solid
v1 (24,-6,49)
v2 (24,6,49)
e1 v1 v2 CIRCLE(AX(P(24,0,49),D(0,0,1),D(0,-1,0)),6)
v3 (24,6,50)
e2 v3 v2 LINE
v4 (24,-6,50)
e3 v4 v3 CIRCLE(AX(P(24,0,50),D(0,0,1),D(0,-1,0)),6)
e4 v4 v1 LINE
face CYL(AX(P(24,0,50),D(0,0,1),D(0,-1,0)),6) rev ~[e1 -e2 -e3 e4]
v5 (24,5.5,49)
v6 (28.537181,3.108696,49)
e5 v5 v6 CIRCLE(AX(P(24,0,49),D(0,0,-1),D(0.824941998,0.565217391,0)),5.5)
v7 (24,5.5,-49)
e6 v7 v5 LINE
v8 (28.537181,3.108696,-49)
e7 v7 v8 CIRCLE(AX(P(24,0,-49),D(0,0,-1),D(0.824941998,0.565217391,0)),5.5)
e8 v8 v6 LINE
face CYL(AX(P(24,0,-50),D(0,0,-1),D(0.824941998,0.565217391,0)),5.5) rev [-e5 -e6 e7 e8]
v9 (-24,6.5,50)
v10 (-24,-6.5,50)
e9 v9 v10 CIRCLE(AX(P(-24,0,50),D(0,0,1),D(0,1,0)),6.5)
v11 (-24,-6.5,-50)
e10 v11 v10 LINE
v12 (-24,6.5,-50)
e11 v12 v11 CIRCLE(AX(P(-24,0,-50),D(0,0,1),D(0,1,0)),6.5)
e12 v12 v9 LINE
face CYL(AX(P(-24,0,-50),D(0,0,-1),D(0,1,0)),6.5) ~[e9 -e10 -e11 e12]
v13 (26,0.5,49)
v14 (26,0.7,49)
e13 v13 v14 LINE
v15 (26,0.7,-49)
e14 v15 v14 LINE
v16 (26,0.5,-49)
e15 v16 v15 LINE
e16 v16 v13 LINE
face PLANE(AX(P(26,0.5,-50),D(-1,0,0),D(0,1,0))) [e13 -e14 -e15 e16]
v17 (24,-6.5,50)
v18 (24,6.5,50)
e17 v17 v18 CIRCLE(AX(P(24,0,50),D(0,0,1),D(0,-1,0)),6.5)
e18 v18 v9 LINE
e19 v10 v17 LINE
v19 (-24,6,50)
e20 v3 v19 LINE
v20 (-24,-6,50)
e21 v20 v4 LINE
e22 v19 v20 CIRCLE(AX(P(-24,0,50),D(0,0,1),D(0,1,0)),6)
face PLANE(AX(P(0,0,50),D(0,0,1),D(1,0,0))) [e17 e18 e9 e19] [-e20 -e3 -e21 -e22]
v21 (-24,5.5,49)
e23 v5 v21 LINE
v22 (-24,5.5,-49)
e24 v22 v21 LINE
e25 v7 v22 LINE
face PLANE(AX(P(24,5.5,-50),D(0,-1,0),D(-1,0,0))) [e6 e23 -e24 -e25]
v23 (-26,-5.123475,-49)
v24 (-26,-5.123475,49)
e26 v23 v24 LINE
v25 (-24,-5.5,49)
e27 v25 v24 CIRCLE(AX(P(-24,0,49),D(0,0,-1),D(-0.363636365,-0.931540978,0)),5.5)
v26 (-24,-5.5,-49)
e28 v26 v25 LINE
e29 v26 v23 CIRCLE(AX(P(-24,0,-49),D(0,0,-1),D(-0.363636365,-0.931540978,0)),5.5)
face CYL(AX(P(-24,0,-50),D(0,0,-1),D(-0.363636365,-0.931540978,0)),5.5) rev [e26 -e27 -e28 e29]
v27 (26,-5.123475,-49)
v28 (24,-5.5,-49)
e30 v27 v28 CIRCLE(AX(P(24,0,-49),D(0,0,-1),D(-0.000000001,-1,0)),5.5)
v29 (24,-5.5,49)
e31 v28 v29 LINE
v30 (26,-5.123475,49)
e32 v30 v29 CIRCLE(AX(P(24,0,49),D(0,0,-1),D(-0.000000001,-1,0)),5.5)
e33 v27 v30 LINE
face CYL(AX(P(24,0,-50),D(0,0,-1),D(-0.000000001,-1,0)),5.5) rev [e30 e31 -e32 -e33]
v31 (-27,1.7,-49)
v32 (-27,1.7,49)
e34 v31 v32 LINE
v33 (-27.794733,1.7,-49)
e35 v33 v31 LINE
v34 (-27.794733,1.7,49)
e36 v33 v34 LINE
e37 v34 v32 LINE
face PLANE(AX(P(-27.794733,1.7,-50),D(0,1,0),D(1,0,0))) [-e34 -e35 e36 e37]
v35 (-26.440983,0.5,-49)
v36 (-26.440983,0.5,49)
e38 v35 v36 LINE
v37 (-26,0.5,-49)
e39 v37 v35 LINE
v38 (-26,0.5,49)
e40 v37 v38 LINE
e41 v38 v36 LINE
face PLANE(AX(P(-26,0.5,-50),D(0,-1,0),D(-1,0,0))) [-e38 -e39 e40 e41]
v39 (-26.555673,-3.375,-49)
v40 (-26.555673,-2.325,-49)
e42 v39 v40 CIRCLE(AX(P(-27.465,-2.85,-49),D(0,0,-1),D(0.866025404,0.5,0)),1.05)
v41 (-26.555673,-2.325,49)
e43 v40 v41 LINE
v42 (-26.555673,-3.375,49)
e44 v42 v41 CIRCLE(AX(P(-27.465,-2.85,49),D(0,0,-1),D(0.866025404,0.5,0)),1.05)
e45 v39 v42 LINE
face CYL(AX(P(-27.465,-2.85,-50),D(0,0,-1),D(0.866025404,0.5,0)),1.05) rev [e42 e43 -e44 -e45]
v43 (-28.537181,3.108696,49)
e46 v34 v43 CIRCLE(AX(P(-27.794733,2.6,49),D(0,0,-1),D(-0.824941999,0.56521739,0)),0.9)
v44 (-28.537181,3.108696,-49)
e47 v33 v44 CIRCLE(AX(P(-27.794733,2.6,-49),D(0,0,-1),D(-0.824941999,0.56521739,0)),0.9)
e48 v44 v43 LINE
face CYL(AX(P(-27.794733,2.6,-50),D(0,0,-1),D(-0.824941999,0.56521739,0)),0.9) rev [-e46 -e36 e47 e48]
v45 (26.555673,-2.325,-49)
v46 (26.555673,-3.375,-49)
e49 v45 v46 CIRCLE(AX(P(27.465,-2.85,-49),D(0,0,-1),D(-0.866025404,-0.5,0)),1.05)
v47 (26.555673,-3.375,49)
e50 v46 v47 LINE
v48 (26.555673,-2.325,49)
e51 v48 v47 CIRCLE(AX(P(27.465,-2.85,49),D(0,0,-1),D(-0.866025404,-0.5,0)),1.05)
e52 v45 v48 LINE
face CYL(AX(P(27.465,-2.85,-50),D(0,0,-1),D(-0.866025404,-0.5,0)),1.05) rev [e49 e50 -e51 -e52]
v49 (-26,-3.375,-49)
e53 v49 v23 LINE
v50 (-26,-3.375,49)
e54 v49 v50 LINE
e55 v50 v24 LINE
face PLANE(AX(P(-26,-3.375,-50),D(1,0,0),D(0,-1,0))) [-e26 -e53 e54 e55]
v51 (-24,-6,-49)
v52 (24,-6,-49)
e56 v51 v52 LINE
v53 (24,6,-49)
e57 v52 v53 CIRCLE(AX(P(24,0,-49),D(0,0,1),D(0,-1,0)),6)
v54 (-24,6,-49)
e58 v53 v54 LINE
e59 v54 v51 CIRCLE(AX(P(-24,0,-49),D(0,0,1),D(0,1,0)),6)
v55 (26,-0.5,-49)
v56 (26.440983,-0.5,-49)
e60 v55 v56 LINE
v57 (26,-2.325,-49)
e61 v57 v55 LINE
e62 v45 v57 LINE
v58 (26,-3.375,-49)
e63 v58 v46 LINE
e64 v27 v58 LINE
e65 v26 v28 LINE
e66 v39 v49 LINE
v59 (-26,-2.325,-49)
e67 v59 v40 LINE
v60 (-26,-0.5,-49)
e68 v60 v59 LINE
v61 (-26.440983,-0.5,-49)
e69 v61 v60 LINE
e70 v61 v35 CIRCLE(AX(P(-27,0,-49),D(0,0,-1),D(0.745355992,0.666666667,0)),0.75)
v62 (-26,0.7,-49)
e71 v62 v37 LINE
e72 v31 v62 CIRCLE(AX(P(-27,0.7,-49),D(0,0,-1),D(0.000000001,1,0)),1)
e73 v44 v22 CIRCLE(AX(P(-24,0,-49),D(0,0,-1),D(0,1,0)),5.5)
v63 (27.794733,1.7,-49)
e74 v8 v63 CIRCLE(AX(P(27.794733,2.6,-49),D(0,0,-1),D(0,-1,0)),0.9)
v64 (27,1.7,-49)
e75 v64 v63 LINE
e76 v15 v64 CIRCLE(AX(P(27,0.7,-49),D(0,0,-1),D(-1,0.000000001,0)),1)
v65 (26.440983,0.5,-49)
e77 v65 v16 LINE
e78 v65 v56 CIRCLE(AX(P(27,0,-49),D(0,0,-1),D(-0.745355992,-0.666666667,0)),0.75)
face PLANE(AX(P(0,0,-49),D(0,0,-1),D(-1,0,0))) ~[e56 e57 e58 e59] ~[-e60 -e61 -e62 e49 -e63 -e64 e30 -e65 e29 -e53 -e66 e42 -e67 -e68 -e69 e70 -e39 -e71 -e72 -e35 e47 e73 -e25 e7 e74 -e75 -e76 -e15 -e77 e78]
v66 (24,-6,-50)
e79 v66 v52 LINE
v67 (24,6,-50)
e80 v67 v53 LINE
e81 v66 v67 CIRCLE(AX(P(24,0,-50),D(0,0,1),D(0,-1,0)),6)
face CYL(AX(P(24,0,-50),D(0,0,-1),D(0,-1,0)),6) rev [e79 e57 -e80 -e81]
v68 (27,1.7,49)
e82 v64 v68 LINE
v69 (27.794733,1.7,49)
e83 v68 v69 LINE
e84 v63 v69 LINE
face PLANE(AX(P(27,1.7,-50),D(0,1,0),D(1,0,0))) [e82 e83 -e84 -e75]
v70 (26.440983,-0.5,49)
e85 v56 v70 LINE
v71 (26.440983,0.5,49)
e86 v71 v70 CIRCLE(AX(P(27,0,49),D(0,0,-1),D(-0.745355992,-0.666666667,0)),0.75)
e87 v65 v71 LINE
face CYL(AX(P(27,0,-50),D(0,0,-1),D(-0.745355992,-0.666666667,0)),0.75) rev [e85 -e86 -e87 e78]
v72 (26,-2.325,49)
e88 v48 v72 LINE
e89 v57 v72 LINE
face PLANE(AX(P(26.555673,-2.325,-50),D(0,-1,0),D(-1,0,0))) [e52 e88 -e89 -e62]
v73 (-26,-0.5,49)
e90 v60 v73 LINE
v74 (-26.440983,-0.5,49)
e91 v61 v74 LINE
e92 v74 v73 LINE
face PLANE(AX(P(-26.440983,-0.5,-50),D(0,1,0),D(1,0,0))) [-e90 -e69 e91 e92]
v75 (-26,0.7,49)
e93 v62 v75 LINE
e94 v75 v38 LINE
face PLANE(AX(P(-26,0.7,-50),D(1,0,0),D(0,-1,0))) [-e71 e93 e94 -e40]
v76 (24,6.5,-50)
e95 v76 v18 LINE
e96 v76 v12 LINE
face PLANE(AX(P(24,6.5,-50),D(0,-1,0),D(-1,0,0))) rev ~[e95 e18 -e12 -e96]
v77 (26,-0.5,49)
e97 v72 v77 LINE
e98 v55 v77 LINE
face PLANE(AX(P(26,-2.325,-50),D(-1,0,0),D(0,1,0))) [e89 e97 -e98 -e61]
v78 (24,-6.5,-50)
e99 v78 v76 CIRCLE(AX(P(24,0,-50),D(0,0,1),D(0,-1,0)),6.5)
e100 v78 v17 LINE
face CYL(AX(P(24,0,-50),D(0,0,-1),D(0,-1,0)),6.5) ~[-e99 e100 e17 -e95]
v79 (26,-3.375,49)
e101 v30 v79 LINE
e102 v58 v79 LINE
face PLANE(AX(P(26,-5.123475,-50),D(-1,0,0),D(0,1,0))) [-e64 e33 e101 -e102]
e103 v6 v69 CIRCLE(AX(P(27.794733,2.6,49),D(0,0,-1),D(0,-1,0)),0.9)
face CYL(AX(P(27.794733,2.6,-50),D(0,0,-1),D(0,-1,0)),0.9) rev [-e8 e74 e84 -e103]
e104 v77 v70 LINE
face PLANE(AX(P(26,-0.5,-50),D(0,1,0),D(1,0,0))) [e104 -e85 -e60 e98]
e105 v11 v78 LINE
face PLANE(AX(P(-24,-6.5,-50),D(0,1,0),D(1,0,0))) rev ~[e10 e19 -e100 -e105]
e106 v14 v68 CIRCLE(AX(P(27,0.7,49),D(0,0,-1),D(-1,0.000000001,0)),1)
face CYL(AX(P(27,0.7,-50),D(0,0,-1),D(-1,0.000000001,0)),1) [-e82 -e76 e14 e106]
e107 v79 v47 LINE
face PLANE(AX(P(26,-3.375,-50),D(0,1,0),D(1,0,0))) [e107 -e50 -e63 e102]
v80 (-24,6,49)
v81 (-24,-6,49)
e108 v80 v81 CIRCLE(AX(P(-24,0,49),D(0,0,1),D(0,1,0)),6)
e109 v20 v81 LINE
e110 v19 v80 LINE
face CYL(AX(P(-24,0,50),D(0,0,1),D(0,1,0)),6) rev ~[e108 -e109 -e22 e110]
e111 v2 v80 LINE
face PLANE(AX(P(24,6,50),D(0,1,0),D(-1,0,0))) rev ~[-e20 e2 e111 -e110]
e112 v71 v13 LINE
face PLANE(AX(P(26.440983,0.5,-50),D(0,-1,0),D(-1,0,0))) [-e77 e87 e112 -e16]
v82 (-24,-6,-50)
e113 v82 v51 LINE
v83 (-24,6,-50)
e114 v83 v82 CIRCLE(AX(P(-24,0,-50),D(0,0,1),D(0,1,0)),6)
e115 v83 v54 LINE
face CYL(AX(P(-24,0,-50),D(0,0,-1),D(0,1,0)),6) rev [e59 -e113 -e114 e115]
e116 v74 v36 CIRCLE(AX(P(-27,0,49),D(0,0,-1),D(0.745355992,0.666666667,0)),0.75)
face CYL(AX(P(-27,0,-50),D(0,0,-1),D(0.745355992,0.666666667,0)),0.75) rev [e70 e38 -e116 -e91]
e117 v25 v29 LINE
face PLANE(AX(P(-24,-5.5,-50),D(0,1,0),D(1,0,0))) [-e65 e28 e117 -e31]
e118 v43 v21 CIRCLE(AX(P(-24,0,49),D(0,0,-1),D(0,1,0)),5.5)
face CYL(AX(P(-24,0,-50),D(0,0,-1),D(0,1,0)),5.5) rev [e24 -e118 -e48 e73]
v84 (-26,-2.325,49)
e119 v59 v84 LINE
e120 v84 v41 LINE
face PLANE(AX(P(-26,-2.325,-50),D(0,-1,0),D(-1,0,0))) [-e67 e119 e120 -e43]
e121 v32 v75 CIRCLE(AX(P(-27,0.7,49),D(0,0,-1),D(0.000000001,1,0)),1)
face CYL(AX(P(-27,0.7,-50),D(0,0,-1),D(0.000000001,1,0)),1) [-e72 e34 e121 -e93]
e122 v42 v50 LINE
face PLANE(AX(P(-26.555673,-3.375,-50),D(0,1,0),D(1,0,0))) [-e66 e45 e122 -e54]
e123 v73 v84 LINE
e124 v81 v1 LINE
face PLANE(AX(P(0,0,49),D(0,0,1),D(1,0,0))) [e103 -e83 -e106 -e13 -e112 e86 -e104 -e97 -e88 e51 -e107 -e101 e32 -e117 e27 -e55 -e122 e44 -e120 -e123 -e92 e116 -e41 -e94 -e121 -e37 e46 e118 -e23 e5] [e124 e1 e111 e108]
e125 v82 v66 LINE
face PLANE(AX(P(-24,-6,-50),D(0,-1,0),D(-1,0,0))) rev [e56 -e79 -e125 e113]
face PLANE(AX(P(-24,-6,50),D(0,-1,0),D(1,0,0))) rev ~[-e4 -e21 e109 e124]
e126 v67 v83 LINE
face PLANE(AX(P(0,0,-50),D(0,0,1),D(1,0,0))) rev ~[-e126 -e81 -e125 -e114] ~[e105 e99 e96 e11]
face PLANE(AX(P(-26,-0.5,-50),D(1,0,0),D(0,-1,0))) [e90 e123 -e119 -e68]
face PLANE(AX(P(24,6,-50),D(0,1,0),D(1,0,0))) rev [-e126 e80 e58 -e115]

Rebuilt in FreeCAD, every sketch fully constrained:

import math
import FreeCAD as App
import Part
import Sketcher
from FreeCAD import Vector

doc = App.newDocument("Part")
body = doc.addObject("PartDesign::Body", "Body")

# Sketch on XY plane
sketch1 = doc.addObject("Sketcher::SketchObject", "Sketch")
body.addObject(sketch1)
sketch1.AttachmentSupport = (doc.XY_Plane, [""])
sketch1.MapMode = "FlatFace"
sketch1.addGeometry(Part.LineSegment(Vector(24, 6.5, 0), Vector(-24, 6.5, 0)), False)
sketch1.addGeometry(Part.ArcOfCircle(Part.Circle(Vector(-24, 0, 0), Vector(0, 0, 1), 6.5), math.radians(90), math.radians(270)), False)
sketch1.addGeometry(Part.LineSegment(Vector(-24, -6.5, 0), Vector(24, -6.5, 0)), False)
sketch1.addGeometry(Part.ArcOfCircle(Part.Circle(Vector(24, 0, 0), Vector(0, 0, 1), 6.5), math.radians(-90), math.radians(90)), False)
sketch1.addGeometry(Part.LineSegment(Vector(-24, 5.5, 0), Vector(24, 5.5, 0)), False)
sketch1.addGeometry(Part.ArcOfCircle(Part.Circle(Vector(24, 0, 0), Vector(0, 0, 1), 5.5), math.radians(34.417389), math.radians(90)), False)
sketch1.addGeometry(Part.ArcOfCircle(Part.Circle(Vector(27.794733, 2.6, 0), Vector(0, 0, 1), 0.9), math.radians(-90), math.radians(34.417389)), False)
sketch1.addGeometry(Part.LineSegment(Vector(27.794733, 1.7, 0), Vector(27, 1.7, 0)), False)
sketch1.addGeometry(Part.ArcOfCircle(Part.Circle(Vector(27, 0.7, 0), Vector(0, 0, 1), 1), math.radians(90), math.radians(180)), False)
sketch1.addGeometry(Part.LineSegment(Vector(26, 0.7, 0), Vector(26, 0.5, 0)), False)
sketch1.addGeometry(Part.LineSegment(Vector(26, 0.5, 0), Vector(26.440983, 0.5, 0)), False)
sketch1.addGeometry(Part.ArcOfCircle(Part.Circle(Vector(27, 0, 0), Vector(0, 0, 1), 0.75), math.radians(-138.189685), math.radians(138.189685)), False)
sketch1.addGeometry(Part.LineSegment(Vector(26.440983, -0.5, 0), Vector(26, -0.5, 0)), False)
sketch1.addGeometry(Part.LineSegment(Vector(26, -0.5, 0), Vector(26, -2.325, 0)), False)
sketch1.addGeometry(Part.LineSegment(Vector(26, -2.325, 0), Vector(26.555673, -2.325, 0)), False)
sketch1.addGeometry(Part.ArcOfCircle(Part.Circle(Vector(27.465, -2.85, 0), Vector(0, 0, 1), 1.05), math.radians(-150), math.radians(150)), False)
sketch1.addGeometry(Part.LineSegment(Vector(26.555673, -3.375, 0), Vector(26, -3.375, 0)), False)
sketch1.addGeometry(Part.LineSegment(Vector(26, -3.375, 0), Vector(26, -5.123475, 0)), False)
sketch1.addGeometry(Part.ArcOfCircle(Part.Circle(Vector(24, 0, 0), Vector(0, 0, 1), 5.5), math.radians(-90), math.radians(-68.676314)), False)
sketch1.addGeometry(Part.LineSegment(Vector(24, -5.5, 0), Vector(-24, -5.5, 0)), False)
sketch1.addGeometry(Part.ArcOfCircle(Part.Circle(Vector(-24, 0, 0), Vector(0, 0, 1), 5.5), math.radians(-111.323686), math.radians(-90)), False)
sketch1.addGeometry(Part.LineSegment(Vector(-26, -5.123475, 0), Vector(-26, -3.375, 0)), False)
sketch1.addGeometry(Part.LineSegment(Vector(-26, -3.375, 0), Vector(-26.555673, -3.375, 0)), False)
sketch1.addGeometry(Part.ArcOfCircle(Part.Circle(Vector(-27.465, -2.85, 0), Vector(0, 0, 1), 1.05), math.radians(30), math.radians(330)), False)
sketch1.addGeometry(Part.LineSegment(Vector(-26.555673, -2.325, 0), Vector(-26, -2.325, 0)), False)
sketch1.addGeometry(Part.LineSegment(Vector(-26, -2.325, 0), Vector(-26, -0.5, 0)), False)
sketch1.addGeometry(Part.LineSegment(Vector(-26, -0.5, 0), Vector(-26.440983, -0.5, 0)), False)
sketch1.addGeometry(Part.ArcOfCircle(Part.Circle(Vector(-27, 0, 0), Vector(0, 0, 1), 0.75), math.radians(41.810315), math.radians(318.189685)), False)
sketch1.addGeometry(Part.LineSegment(Vector(-26.440983, 0.5, 0), Vector(-26, 0.5, 0)), False)
sketch1.addGeometry(Part.LineSegment(Vector(-26, 0.5, 0), Vector(-26, 0.7, 0)), False)
sketch1.addGeometry(Part.ArcOfCircle(Part.Circle(Vector(-27, 0.7, 0), Vector(0, 0, 1), 1), math.radians(0), math.radians(90)), False)
sketch1.addGeometry(Part.LineSegment(Vector(-27, 1.7, 0), Vector(-27.794733, 1.7, 0)), False)
sketch1.addGeometry(Part.ArcOfCircle(Part.Circle(Vector(-27.794733, 2.6, 0), Vector(0, 0, 1), 0.9), math.radians(145.582611), math.radians(270)), False)
sketch1.addGeometry(Part.ArcOfCircle(Part.Circle(Vector(-24, 0, 0), Vector(0, 0, 1), 5.5), math.radians(90), math.radians(145.582611)), False)
sketch1.addConstraint(Sketcher.Constraint("Tangent", 0, 2, 1, 1))
sketch1.addConstraint(Sketcher.Constraint("Tangent", 1, 2, 2, 1))
sketch1.addConstraint(Sketcher.Constraint("Tangent", 2, 2, 3, 1))
sketch1.addConstraint(Sketcher.Constraint("Tangent", 3, 2, 0, 1))
sketch1.addConstraint(Sketcher.Constraint("Tangent", 4, 2, 5, 2))
sketch1.addConstraint(Sketcher.Constraint("Tangent", 5, 1, 6, 2))
sketch1.addConstraint(Sketcher.Constraint("Tangent", 6, 1, 7, 1))
sketch1.addConstraint(Sketcher.Constraint("Tangent", 7, 2, 8, 1))
sketch1.addConstraint(Sketcher.Constraint("Tangent", 8, 2, 9, 1))
sketch1.addConstraint(Sketcher.Constraint("Coincident", 9, 2, 10, 1))
sketch1.addConstraint(Sketcher.Constraint("Coincident", 10, 2, 11, 2))
sketch1.addConstraint(Sketcher.Constraint("Coincident", 11, 1, 12, 1))
sketch1.addConstraint(Sketcher.Constraint("Coincident", 12, 2, 13, 1))
sketch1.addConstraint(Sketcher.Constraint("Coincident", 13, 2, 14, 1))
sketch1.addConstraint(Sketcher.Constraint("Coincident", 14, 2, 15, 2))
sketch1.addConstraint(Sketcher.Constraint("Coincident", 15, 1, 16, 1))
sketch1.addConstraint(Sketcher.Constraint("Coincident", 16, 2, 17, 1))
sketch1.addConstraint(Sketcher.Constraint("Coincident", 17, 2, 18, 2))
sketch1.addConstraint(Sketcher.Constraint("Tangent", 18, 1, 19, 1))
sketch1.addConstraint(Sketcher.Constraint("Tangent", 19, 2, 20, 2))
sketch1.addConstraint(Sketcher.Constraint("Coincident", 20, 1, 21, 1))
sketch1.addConstraint(Sketcher.Constraint("Coincident", 21, 2, 22, 1))
sketch1.addConstraint(Sketcher.Constraint("Coincident", 22, 2, 23, 2))
sketch1.addConstraint(Sketcher.Constraint("Coincident", 23, 1, 24, 1))
sketch1.addConstraint(Sketcher.Constraint("Coincident", 24, 2, 25, 1))
sketch1.addConstraint(Sketcher.Constraint("Coincident", 25, 2, 26, 1))
sketch1.addConstraint(Sketcher.Constraint("Coincident", 26, 2, 27, 2))
sketch1.addConstraint(Sketcher.Constraint("Coincident", 27, 1, 28, 1))
sketch1.addConstraint(Sketcher.Constraint("Coincident", 28, 2, 29, 1))
sketch1.addConstraint(Sketcher.Constraint("Tangent", 29, 2, 30, 1))
sketch1.addConstraint(Sketcher.Constraint("Tangent", 30, 2, 31, 1))
sketch1.addConstraint(Sketcher.Constraint("Tangent", 31, 2, 32, 2))
sketch1.addConstraint(Sketcher.Constraint("Tangent", 32, 1, 33, 2))
sketch1.addConstraint(Sketcher.Constraint("Tangent", 33, 1, 4, 1))
sketch1.addConstraint(Sketcher.Constraint("Horizontal", 0))
sketch1.addConstraint(Sketcher.Constraint("Horizontal", 2))
sketch1.addConstraint(Sketcher.Constraint("Horizontal", 4))
sketch1.addConstraint(Sketcher.Constraint("Horizontal", 7))
sketch1.addConstraint(Sketcher.Constraint("Vertical", 9))
sketch1.addConstraint(Sketcher.Constraint("Horizontal", 10))
sketch1.addConstraint(Sketcher.Constraint("Horizontal", 12))
sketch1.addConstraint(Sketcher.Constraint("Vertical", 13))
sketch1.addConstraint(Sketcher.Constraint("Horizontal", 14))
sketch1.addConstraint(Sketcher.Constraint("Horizontal", 16))
sketch1.addConstraint(Sketcher.Constraint("Vertical", 17))
sketch1.addConstraint(Sketcher.Constraint("Horizontal", 19))
sketch1.addConstraint(Sketcher.Constraint("Vertical", 21))
sketch1.addConstraint(Sketcher.Constraint("Horizontal", 22))
sketch1.addConstraint(Sketcher.Constraint("Horizontal", 24))
sketch1.addConstraint(Sketcher.Constraint("Vertical", 25))
sketch1.addConstraint(Sketcher.Constraint("Horizontal", 26))
sketch1.addConstraint(Sketcher.Constraint("Horizontal", 28))
sketch1.addConstraint(Sketcher.Constraint("Vertical", 29))
sketch1.addConstraint(Sketcher.Constraint("Horizontal", 31))
sketch1.addConstraint(Sketcher.Constraint("Coincident", 5, 3, 3, 3))
sketch1.addConstraint(Sketcher.Constraint("Coincident", 18, 3, 3, 3))
sketch1.addConstraint(Sketcher.Constraint("Coincident", 20, 3, 1, 3))
sketch1.addConstraint(Sketcher.Constraint("Coincident", 33, 3, 1, 3))
sketch1.addConstraint(Sketcher.Constraint("Equal", 5, 18))
sketch1.addConstraint(Sketcher.Constraint("Equal", 15, 23))
sketch1.addConstraint(Sketcher.Constraint("Equal", 11, 27))
sketch1.addConstraint(Sketcher.Constraint("Equal", 8, 30))
sketch1.addConstraint(Sketcher.Constraint("Equal", 6, 32))
sketch1.addConstraint(Sketcher.Constraint("Symmetric", 1, 3, 3, 3, -1, 1))
sketch1.addConstraint(Sketcher.Constraint("Symmetric", 11, 3, 27, 3, -1, 1))
sketch1.addConstraint(Sketcher.Constraint("Symmetric", 9, 2, 25, 2, -1, 1))
sketch1.addConstraint(Sketcher.Constraint("Symmetric", 12, 2, 28, 2, -1, 1))
sketch1.addConstraint(Sketcher.Constraint("Symmetric", 15, 3, 23, 3, -2))
sketch1.addConstraint(Sketcher.Constraint("Symmetric", 8, 3, 30, 3, -2))
sketch1.addConstraint(Sketcher.Constraint("Symmetric", 16, 2, 21, 2, -2))
sketch1.addConstraint(Sketcher.Constraint("Symmetric", 11, 1, 26, 2, -2))
sketch1.addConstraint(Sketcher.Constraint("Horizontal", 14, 2, 23, 1))
sketch1.addConstraint(Sketcher.Constraint("Vertical", 8, 3, 11, 3))
sketch1.addConstraint(Sketcher.Constraint("Vertical", 14, 2, 15, 1))
sketch1.addConstraint(Sketcher.Constraint("Vertical", 13, 2, 16, 2))
sketch1.addConstraint(Sketcher.Constraint("Radius", 8, 1.0))
sketch1.addConstraint(Sketcher.Constraint("Radius", 1, 6.5))
sketch1.addConstraint(Sketcher.Constraint("Radius", 5, 5.5))
sketch1.addConstraint(Sketcher.Constraint("Radius", 6, 0.9))
sketch1.addConstraint(Sketcher.Constraint("DistanceX", 0, 2, 0, 1, 48.0))
sketch1.addConstraint(Sketcher.Constraint("Radius", 11, 0.75))
sketch1.addConstraint(Sketcher.Constraint("Radius", 15, 1.05))
sketch1.addConstraint(Sketcher.Constraint("DistanceY", 9, 2, 9, 1, 0.2))
sketch1.addConstraint(Sketcher.Constraint("DistanceX", -1, 1, 8, 3, 27.0))
sketch1.addConstraint(Sketcher.Constraint("DistanceY", 11, 1, 10, 2, 1.0))
sketch1.addConstraint(Sketcher.Constraint("DistanceY", 13, 2, 13, 1, 1.825))
sketch1.addConstraint(Sketcher.Constraint("DistanceY", 15, 3, -1, 1, 2.85))
sketch1.addConstraint(Sketcher.Constraint("DistanceX", -1, 1, 15, 3, 27.465))
pad1 = doc.addObject("PartDesign::Pad", "Pad")
body.addObject(pad1)
pad1.Profile = sketch1
pad1.Type = "TwoLengths"
pad1.Length = 50
pad1.Length2 = 50

# Sketch on XY plane
sketch2 = doc.addObject("Sketcher::SketchObject", "Sketch001")
body.addObject(sketch2)
sketch2.AttachmentSupport = (doc.XY_Plane, [""])
sketch2.MapMode = "FlatFace"
sketch2.AttachmentOffset = App.Placement(Vector(0, 0, 50), App.Rotation())
sketch2.addGeometry(Part.LineSegment(Vector(24, 6, 0), Vector(-24, 6, 0)), False)
sketch2.addGeometry(Part.ArcOfCircle(Part.Circle(Vector(-24, 0, 0), Vector(0, 0, 1), 6), math.radians(90), math.radians(270)), False)
sketch2.addGeometry(Part.LineSegment(Vector(-24, -6, 0), Vector(24, -6, 0)), False)
sketch2.addGeometry(Part.ArcOfCircle(Part.Circle(Vector(24, 0, 0), Vector(0, 0, 1), 6), math.radians(-90), math.radians(90)), False)
sketch2.addConstraint(Sketcher.Constraint("Tangent", 0, 2, 1, 1))
sketch2.addConstraint(Sketcher.Constraint("Tangent", 1, 2, 2, 1))
sketch2.addConstraint(Sketcher.Constraint("Tangent", 2, 2, 3, 1))
sketch2.addConstraint(Sketcher.Constraint("Tangent", 3, 2, 0, 1))
sketch2.addConstraint(Sketcher.Constraint("Horizontal", 0))
sketch2.addConstraint(Sketcher.Constraint("Horizontal", 2))
sketch2.addConstraint(Sketcher.Constraint("Symmetric", 1, 3, 3, 3, -1, 1))
sketch2.addConstraint(Sketcher.Constraint("Radius", 1, 6.0))
sketch2.addConstraint(Sketcher.Constraint("DistanceX", 0, 2, 0, 1, 48.0))
pocket1 = doc.addObject("PartDesign::Pocket", "Pocket")
body.addObject(pocket1)
pocket1.Profile = sketch2
pocket1.Length = 1
doc.recompute()

mirrored = doc.addObject("PartDesign::Mirrored", "Mirrored")
body.addObject(mirrored)
mirrored.Originals = [pocket1]
mirrored.MirrorPlane = (doc.XY_Plane, [""])
body.Tip = mirrored

doc.recompute()
